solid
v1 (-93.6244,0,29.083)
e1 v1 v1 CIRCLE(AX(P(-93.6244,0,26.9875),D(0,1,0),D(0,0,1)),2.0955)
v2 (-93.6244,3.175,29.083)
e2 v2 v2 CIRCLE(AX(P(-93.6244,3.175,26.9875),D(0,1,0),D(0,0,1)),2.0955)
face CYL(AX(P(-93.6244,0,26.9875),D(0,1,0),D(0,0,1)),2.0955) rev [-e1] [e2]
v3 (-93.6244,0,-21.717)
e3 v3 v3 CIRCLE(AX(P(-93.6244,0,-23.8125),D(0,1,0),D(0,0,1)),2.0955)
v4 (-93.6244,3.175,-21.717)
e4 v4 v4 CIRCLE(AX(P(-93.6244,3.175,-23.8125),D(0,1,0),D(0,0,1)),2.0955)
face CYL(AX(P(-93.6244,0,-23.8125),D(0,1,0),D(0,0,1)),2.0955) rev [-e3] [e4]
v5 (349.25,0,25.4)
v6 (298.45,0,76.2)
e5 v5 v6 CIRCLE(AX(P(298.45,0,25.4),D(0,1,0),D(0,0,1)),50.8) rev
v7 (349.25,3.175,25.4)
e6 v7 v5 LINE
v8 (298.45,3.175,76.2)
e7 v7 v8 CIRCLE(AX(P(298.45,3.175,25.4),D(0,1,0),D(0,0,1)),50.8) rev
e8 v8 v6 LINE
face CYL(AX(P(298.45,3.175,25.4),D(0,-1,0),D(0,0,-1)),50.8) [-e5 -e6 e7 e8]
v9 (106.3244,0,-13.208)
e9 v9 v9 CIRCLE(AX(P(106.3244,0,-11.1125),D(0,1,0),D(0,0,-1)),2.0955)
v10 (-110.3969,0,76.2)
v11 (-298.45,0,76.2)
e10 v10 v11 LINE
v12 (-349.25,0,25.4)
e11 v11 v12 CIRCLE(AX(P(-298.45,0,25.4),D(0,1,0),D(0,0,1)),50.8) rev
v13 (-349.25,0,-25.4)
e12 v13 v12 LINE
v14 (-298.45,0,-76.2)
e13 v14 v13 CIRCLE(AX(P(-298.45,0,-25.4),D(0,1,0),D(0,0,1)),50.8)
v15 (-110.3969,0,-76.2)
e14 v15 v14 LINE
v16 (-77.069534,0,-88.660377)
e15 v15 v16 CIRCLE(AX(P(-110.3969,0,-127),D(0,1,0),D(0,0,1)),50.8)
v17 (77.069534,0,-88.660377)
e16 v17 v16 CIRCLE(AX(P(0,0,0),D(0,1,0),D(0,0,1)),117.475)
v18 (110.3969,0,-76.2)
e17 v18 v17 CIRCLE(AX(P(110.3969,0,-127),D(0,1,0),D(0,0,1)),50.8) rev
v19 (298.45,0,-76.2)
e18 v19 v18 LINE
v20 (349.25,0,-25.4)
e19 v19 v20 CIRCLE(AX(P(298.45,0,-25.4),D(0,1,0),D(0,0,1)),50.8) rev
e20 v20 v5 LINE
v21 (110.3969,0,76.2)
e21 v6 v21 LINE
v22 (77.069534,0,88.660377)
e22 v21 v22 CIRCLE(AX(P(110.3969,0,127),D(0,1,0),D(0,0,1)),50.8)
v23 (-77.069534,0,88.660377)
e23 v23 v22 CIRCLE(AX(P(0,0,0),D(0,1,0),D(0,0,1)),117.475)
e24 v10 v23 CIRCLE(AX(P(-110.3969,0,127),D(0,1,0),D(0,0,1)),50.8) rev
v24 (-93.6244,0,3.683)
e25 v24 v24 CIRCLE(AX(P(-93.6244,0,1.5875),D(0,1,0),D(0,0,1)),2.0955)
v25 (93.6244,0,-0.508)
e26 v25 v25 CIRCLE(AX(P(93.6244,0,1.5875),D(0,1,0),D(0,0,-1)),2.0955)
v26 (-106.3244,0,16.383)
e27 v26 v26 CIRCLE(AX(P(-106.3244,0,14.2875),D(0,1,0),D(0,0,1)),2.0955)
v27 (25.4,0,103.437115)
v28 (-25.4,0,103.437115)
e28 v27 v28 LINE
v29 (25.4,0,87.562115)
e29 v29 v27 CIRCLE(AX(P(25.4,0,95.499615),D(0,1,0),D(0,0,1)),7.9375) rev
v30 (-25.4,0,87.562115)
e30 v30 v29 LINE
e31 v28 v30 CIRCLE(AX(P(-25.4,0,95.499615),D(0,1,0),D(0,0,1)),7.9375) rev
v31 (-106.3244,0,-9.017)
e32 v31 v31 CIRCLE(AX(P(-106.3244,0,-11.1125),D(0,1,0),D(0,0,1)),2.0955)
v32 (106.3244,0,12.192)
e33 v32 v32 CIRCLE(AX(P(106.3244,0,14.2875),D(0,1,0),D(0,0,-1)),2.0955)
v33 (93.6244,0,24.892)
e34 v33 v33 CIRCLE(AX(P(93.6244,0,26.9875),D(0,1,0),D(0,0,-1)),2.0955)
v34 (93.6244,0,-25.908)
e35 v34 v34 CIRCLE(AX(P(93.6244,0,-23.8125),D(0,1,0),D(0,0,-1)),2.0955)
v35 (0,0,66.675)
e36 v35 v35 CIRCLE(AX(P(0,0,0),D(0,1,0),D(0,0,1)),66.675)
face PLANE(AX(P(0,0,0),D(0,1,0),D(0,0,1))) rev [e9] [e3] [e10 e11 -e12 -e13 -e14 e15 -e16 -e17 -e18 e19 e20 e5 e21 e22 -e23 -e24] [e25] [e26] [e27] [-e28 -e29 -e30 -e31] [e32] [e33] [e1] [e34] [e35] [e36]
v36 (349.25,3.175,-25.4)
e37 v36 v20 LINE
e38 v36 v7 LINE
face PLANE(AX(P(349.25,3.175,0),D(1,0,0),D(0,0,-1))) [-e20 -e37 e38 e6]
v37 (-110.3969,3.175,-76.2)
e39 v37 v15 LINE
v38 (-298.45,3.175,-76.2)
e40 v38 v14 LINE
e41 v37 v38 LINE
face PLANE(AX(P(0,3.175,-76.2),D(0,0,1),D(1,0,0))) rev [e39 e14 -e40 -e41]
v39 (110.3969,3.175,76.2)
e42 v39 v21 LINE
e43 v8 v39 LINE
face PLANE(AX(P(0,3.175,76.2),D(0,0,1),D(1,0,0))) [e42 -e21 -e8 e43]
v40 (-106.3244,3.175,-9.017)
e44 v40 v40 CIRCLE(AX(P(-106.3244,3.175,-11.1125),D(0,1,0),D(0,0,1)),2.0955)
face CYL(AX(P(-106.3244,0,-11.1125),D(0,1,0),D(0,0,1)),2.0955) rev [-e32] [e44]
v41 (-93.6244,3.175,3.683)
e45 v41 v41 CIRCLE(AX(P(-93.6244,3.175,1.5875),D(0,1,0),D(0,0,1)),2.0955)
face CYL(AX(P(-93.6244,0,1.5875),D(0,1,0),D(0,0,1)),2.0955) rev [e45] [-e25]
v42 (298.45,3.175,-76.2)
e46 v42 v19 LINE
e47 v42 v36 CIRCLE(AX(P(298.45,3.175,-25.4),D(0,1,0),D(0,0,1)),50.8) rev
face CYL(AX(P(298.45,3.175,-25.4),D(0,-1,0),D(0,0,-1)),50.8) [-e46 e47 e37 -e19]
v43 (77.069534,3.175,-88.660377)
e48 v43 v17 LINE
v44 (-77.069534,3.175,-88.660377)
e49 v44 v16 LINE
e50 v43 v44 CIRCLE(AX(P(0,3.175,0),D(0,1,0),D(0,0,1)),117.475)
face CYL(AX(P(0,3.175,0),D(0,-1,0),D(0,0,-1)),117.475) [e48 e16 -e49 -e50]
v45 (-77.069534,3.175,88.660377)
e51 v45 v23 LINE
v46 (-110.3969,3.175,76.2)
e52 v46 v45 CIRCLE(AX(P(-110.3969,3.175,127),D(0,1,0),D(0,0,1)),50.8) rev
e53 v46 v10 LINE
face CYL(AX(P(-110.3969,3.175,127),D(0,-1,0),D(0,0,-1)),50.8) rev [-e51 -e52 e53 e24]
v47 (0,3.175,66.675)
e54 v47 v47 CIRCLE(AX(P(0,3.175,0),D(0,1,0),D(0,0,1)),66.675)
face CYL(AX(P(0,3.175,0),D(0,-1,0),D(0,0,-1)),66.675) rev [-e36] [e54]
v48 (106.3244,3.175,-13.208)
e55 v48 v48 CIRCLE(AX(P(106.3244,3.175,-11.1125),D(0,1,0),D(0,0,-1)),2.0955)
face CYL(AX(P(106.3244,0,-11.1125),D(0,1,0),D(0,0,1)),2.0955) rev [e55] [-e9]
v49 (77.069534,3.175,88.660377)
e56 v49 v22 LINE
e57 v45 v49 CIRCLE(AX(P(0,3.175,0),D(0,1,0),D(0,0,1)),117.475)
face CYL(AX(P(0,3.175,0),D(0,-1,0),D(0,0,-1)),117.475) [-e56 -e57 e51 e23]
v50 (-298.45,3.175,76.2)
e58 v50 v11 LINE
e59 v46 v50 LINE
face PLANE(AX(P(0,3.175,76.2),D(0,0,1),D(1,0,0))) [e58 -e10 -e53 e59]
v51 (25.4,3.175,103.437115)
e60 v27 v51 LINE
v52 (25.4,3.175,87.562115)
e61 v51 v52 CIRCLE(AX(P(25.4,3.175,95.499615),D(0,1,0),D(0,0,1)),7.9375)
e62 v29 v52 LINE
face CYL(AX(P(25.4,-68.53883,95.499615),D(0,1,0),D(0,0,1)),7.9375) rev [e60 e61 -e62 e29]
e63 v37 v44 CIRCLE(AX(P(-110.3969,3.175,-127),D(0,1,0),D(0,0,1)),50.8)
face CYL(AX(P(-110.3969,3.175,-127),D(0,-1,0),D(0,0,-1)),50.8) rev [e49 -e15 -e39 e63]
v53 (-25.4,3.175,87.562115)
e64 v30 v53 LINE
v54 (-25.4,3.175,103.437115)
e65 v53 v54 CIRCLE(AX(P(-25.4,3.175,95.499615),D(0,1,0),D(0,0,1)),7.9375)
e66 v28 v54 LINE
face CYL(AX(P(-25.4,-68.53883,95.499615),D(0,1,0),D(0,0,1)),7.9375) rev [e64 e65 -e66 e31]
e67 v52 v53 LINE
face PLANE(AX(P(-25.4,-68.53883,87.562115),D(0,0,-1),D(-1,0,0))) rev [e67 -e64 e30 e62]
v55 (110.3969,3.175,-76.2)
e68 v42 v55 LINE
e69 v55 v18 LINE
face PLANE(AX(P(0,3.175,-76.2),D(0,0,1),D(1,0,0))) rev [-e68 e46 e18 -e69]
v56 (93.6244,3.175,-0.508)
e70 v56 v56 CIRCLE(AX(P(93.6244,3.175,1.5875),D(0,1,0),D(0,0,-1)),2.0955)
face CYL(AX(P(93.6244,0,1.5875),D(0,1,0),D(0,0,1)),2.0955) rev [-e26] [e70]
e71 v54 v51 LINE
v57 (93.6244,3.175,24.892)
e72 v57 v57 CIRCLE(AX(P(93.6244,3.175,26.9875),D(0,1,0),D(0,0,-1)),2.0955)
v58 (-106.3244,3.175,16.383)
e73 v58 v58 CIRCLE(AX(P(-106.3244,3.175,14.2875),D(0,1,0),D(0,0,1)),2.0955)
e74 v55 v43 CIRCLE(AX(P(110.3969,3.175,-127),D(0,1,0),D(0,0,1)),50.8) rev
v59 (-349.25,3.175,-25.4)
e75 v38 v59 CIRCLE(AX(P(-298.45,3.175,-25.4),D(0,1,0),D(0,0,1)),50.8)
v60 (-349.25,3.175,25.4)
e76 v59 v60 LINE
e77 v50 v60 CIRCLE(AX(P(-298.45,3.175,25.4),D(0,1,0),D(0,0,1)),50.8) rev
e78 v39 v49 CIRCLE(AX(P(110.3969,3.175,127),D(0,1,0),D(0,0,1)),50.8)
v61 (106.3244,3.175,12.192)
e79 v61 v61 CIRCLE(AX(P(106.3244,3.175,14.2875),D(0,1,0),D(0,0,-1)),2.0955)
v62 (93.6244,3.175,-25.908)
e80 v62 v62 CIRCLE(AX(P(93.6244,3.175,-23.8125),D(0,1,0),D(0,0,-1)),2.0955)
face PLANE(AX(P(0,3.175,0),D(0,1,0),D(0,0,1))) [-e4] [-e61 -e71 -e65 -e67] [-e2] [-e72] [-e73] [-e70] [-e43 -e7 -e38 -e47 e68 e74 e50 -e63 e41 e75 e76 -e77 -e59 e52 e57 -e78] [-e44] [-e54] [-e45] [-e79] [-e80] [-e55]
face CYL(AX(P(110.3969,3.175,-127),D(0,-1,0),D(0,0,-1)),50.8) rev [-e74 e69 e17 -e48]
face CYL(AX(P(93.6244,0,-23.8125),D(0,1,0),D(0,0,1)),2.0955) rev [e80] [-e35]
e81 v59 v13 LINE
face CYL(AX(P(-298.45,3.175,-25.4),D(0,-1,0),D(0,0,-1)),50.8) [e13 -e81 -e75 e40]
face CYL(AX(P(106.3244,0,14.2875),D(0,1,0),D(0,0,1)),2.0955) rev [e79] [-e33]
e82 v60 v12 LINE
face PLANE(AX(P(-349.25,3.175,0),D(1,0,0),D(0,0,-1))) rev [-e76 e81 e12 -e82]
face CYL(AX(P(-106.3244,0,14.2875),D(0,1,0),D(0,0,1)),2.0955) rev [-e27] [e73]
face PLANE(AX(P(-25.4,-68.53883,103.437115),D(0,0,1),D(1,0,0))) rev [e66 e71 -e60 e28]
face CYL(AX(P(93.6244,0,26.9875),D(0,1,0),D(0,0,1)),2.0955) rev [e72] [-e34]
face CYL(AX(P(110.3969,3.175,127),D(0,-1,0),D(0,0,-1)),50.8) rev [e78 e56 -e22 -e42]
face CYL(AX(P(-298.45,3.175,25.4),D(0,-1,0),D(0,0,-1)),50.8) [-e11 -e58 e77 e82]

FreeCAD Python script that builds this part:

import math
import FreeCAD as App
import Part
import Sketcher
from FreeCAD import Vector
Q = App.Units.Quantity

doc = App.newDocument("Part")
body = doc.addObject("PartDesign::Body", "Body")

# Sketch on XZ plane
sketch1 = body.newObject("Sketcher::SketchObject", "Sketch")
sketch1.AttachmentSupport = (doc.getObject("XZ_Plane"), [""])
sketch1.MapMode = "FlatFace"
sketch1.addGeometry(Part.LineSegment(Vector(-110, -76, 0), Vector(-298, -76, 0)), False)
sketch1.addGeometry(Part.ArcOfCircle(Part.Circle(Vector(-298, -25, 0), Vector(0, 0, 1), 51), math.radians(-180), math.radians(-90)), False)
sketch1.addGeometry(Part.LineSegment(Vector(-349, -25, 0), Vector(-349, 25, 0)), False)
sketch1.addGeometry(Part.ArcOfCircle(Part.Circle(Vector(-298, 25, 0), Vector(0, 0, 1), 51), math.radians(90), math.radians(180)), False)
sketch1.addGeometry(Part.LineSegment(Vector(-298, 76, 0), Vector(-110, 76, 0)), False)
sketch1.addGeometry(Part.ArcOfCircle(Part.Circle(Vector(-110, 127, 0), Vector(0, 0, 1), 51), math.radians(-90), math.radians(-49)), False)
sketch1.addGeometry(Part.ArcOfCircle(Part.Circle(Vector(0, 0, 0), Vector(0, 0, 1), 117), math.radians(49), math.radians(131)), False)
sketch1.addGeometry(Part.ArcOfCircle(Part.Circle(Vector(110, 127, 0), Vector(0, 0, 1), 51), math.radians(-131), math.radians(-90)), False)
sketch1.addGeometry(Part.LineSegment(Vector(110, 76, 0), Vector(298, 76, 0)), False)
sketch1.addGeometry(Part.ArcOfCircle(Part.Circle(Vector(298, 25, 0), Vector(0, 0, 1), 51), math.radians(0), math.radians(90)), False)
sketch1.addGeometry(Part.LineSegment(Vector(349, 25, 0), Vector(349, -25, 0)), False)
sketch1.addGeometry(Part.ArcOfCircle(Part.Circle(Vector(298, -25, 0), Vector(0, 0, 1), 51), math.radians(-90), math.radians(0)), False)
sketch1.addGeometry(Part.LineSegment(Vector(298, -76, 0), Vector(110, -76, 0)), False)
sketch1.addGeometry(Part.ArcOfCircle(Part.Circle(Vector(110, -127, 0), Vector(0, 0, 1), 51), math.radians(90), math.radians(131)), False)
sketch1.addGeometry(Part.ArcOfCircle(Part.Circle(Vector(0, 0, 0), Vector(0, 0, 1), 117), math.radians(-131), math.radians(-49)), False)
sketch1.addGeometry(Part.ArcOfCircle(Part.Circle(Vector(-110, -127, 0), Vector(0, 0, 1), 51), math.radians(49), math.radians(90)), False)
sketch1.addGeometry(Part.Circle(Vector(0, 0, 0), Vector(0, 0, 1), 67), False)
sketch1.addConstraint(Sketcher.Constraint("Tangent", 0, 2, 1, 2))
sketch1.addConstraint(Sketcher.Constraint("Tangent", 1, 1, 2, 1))
sketch1.addConstraint(Sketcher.Constraint("Tangent", 2, 2, 3, 2))
sketch1.addConstraint(Sketcher.Constraint("Tangent", 3, 1, 4, 1))
sketch1.addConstraint(Sketcher.Constraint("Tangent", 4, 2, 5, 1))
sketch1.addConstraint(Sketcher.Constraint("Tangent", 5, 2, 6, 2))
sketch1.addConstraint(Sketcher.Constraint("Tangent", 6, 1, 7, 1))
sketch1.addConstraint(Sketcher.Constraint("Tangent", 7, 2, 8, 1))
sketch1.addConstraint(Sketcher.Constraint("Tangent", 8, 2, 9, 2))
sketch1.addConstraint(Sketcher.Constraint("Tangent", 9, 1, 10, 1))
sketch1.addConstraint(Sketcher.Constraint("Tangent", 10, 2, 11, 2))
sketch1.addConstraint(Sketcher.Constraint("Tangent", 11, 1, 12, 1))
sketch1.addConstraint(Sketcher.Constraint("Tangent", 12, 2, 13, 1))
sketch1.addConstraint(Sketcher.Constraint("Tangent", 13, 2, 14, 2))
sketch1.addConstraint(Sketcher.Constraint("Tangent", 14, 1, 15, 1))
sketch1.addConstraint(Sketcher.Constraint("Tangent", 15, 2, 0, 1))
sketch1.addConstraint(Sketcher.Constraint("Horizontal", 0))
sketch1.addConstraint(Sketcher.Constraint("Vertical", 2))
sketch1.addConstraint(Sketcher.Constraint("Horizontal", 4))
sketch1.addConstraint(Sketcher.Constraint("Horizontal", 8))
sketch1.addConstraint(Sketcher.Constraint("Vertical", 10))
sketch1.addConstraint(Sketcher.Constraint("Horizontal", 12))
sketch1.addConstraint(Sketcher.Constraint("Coincident", 6, 3, -1, 1))
sketch1.addConstraint(Sketcher.Constraint("Coincident", 14, 3, -1, 1))
sketch1.addConstraint(Sketcher.Constraint("Coincident", 16, 3, -1, 1))
sketch1.addConstraint(Sketcher.Constraint("Equal", 1, 3))
sketch1.addConstraint(Sketcher.Constraint("Equal", 3, 5))
sketch1.addConstraint(Sketcher.Constraint("Equal", 5, 7))
sketch1.addConstraint(Sketcher.Constraint("Equal", 7, 9))
sketch1.addConstraint(Sketcher.Constraint("Equal", 9, 11))
sketch1.addConstraint(Sketcher.Constraint("Equal", 11, 13))
sketch1.addConstraint(Sketcher.Constraint("Equal", 6, 14))
sketch1.addConstraint(Sketcher.Constraint("Equal", 13, 15))
sketch1.addConstraint(Sketcher.Constraint("Symmetric", 1, 3, 9, 3, -1, 1))
sketch1.addConstraint(Sketcher.Constraint("Horizontal", 5, 3, 7, 3))
sketch1.addConstraint(Sketcher.Constraint("Horizontal", 1, 3, 11, 3))
sketch1.addConstraint(Sketcher.Constraint("Radius", 1, Q("2 in")))
sketch1.addConstraint(Sketcher.Constraint("Diameter", 16, Q("5.25 in")))
sketch1.addConstraint(Sketcher.Constraint("DistanceY", 2, 1, 2, 2, Q("2 in")))
sketch1.addConstraint(Sketcher.Constraint("Radius", 6, Q("4.625 in")))
sketch1.addConstraint(Sketcher.Constraint("DistanceX", 3, 3, 9, 3, Q("23.5 in")))
pad1 = body.newObject("PartDesign::Pad", "Pad")
pad1.Profile = sketch1
pad1.Length = Q("0.125 in")
pad1.Reversed = True

# Sketch on XZ plane
sketch2 = body.newObject("Sketcher::SketchObject", "Sketch001")
sketch2.AttachmentSupport = (doc.getObject("XZ_Plane"), [""])
sketch2.MapMode = "FlatFace"
sketch2.AttachmentOffset = App.Placement(Vector(0, 0, -0.125 * 25.4), App.Rotation())
sketch2.addGeometry(Part.LineSegment(Vector(25, 88, 0), Vector(-25, 88, 0)), False)
sketch2.addGeometry(Part.ArcOfCircle(Part.Circle(Vector(-25, 95, 0), Vector(0, 0, 1), 8), math.radians(90), math.radians(270)), False)
sketch2.addGeometry(Part.LineSegment(Vector(-25, 103, 0), Vector(25, 103, 0)), False)
sketch2.addGeometry(Part.ArcOfCircle(Part.Circle(Vector(25, 95, 0), Vector(0, 0, 1), 8), math.radians(-90), math.radians(90)), False)
sketch2.addConstraint(Sketcher.Constraint("Tangent", 0, 2, 1, 2))
sketch2.addConstraint(Sketcher.Constraint("Tangent", 1, 1, 2, 1))
sketch2.addConstraint(Sketcher.Constraint("Tangent", 2, 2, 3, 2))
sketch2.addConstraint(Sketcher.Constraint("Tangent", 3, 1, 0, 1))
sketch2.addConstraint(Sketcher.Constraint("Horizontal", 0))
sketch2.addConstraint(Sketcher.Constraint("Horizontal", 2))
sketch2.addConstraint(Sketcher.Constraint("DistanceX", 0, 2, 0, 1, Q("2 in")))
sketch2.addConstraint(Sketcher.Constraint("DistanceX", 1, 3, -1, 1, Q("1 in")))
sketch2.addConstraint(Sketcher.Constraint("Radius", 1, Q("0.3125 in")))
sketch2.addConstraint(Sketcher.Constraint("DistanceY", -1, 1, 1, 3, 95.499615))
pocket1 = body.newObject("PartDesign::Pocket", "Pocket")
pocket1.Profile = sketch2
pocket1.Length = Q("0.125 in")
pocket1.Reversed = True

# Sketch on XZ plane
sketch3 = body.newObject("Sketcher::SketchObject", "Sketch002")
sketch3.AttachmentSupport = (doc.getObject("XZ_Plane"), [""])
sketch3.MapMode = "FlatFace"
sketch3.AttachmentOffset = App.Placement(Vector(0, 0, -0.125 * 25.4), App.Rotation())
sketch3.addGeometry(Part.Circle(Vector(-93.6, 27, 0), Vector(0, 0, 1), 2.1), False)
sketch3.addGeometry(Part.Circle(Vector(-106.3, 14.3, 0), Vector(0, 0, 1), 2.1), False)
sketch3.addGeometry(Part.Circle(Vector(-93.6, 1.6, 0), Vector(0, 0, 1), 2.1), False)
sketch3.addGeometry(Part.Circle(Vector(-106.3, -11.1, 0), Vector(0, 0, 1), 2.1), False)
sketch3.addGeometry(Part.Circle(Vector(-93.6, -23.8, 0), Vector(0, 0, 1), 2.1), False)
sketch3.addGeometry(Part.Circle(Vector(93.6, 27, 0), Vector(0, 0, 1), 2.1), False)
sketch3.addGeometry(Part.Circle(Vector(106.3, 14.3, 0), Vector(0, 0, 1), 2.1), False)
sketch3.addGeometry(Part.Circle(Vector(93.6, 1.6, 0), Vector(0, 0, 1), 2.1), False)
sketch3.addGeometry(Part.Circle(Vector(106.3, -11.1, 0), Vector(0, 0, 1), 2.1), False)
sketch3.addGeometry(Part.Circle(Vector(93.6, -23.8, 0), Vector(0, 0, 1), 2.1), False)
sketch3.addConstraint(Sketcher.Constraint("Equal", 0, 1))
sketch3.addConstraint(Sketcher.Constraint("Equal", 1, 2))
sketch3.addConstraint(Sketcher.Constraint("Equal", 2, 3))
sketch3.addConstraint(Sketcher.Constraint("Equal", 3, 4))
sketch3.addConstraint(Sketcher.Constraint("Equal", 4, 5))
sketch3.addConstraint(Sketcher.Constraint("Equal", 5, 6))
sketch3.addConstraint(Sketcher.Constraint("Equal", 6, 7))
sketch3.addConstraint(Sketcher.Constraint("Equal", 7, 8))
sketch3.addConstraint(Sketcher.Constraint("Equal", 8, 9))
sketch3.addConstraint(Sketcher.Constraint("Symmetric", 0, 3, 5, 3, -2))
sketch3.addConstraint(Sketcher.Constraint("Symmetric", 1, 3, 6, 3, -2))
sketch3.addConstraint(Sketcher.Constraint("Symmetric", 2, 3, 7, 3, -2))
sketch3.addConstraint(Sketcher.Constraint("Symmetric", 3, 3, 8, 3, -2))
sketch3.addConstraint(Sketcher.Constraint("Symmetric", 4, 3, 9, 3, -2))
sketch3.addConstraint(Sketcher.Constraint("Vertical", 0, 3, 2, 3))
sketch3.addConstraint(Sketcher.Constraint("Vertical", 1, 3, 3, 3))
sketch3.addConstraint(Sketcher.Constraint("Vertical", 2, 3, 4, 3))
sketch3.addConstraint(Sketcher.Constraint("Diameter", 0, Q("0.165 in")))
sketch3.addConstraint(Sketcher.Constraint("DistanceY", 2, 3, 0, 3, Q("1 in")))
sketch3.addConstraint(Sketcher.Constraint("DistanceY", 3, 3, 1, 3, Q("1 in")))
sketch3.addConstraint(Sketcher.Constraint("DistanceY", 4, 3, 2, 3, Q("1 in")))
sketch3.addConstraint(Sketcher.Constraint("DistanceX", 1, 3, 0, 3, Q("0.5 in")))
sketch3.addConstraint(Sketcher.Constraint("DistanceY", 1, 3, 0, 3, Q("0.5 in")))
sketch3.addConstraint(Sketcher.Constraint("DistanceX", 0, 3, -1, 1, Q("3.686 in")))
sketch3.addConstraint(Sketcher.Constraint("DistanceY", -1, 1, 0, 3, Q("1.0625 in")))
pocket2 = body.newObject("PartDesign::Pocket", "Pocket001")
pocket2.Profile = sketch3
pocket2.Type = "ThroughAll"
pocket2.Reversed = True

doc.recompute()
